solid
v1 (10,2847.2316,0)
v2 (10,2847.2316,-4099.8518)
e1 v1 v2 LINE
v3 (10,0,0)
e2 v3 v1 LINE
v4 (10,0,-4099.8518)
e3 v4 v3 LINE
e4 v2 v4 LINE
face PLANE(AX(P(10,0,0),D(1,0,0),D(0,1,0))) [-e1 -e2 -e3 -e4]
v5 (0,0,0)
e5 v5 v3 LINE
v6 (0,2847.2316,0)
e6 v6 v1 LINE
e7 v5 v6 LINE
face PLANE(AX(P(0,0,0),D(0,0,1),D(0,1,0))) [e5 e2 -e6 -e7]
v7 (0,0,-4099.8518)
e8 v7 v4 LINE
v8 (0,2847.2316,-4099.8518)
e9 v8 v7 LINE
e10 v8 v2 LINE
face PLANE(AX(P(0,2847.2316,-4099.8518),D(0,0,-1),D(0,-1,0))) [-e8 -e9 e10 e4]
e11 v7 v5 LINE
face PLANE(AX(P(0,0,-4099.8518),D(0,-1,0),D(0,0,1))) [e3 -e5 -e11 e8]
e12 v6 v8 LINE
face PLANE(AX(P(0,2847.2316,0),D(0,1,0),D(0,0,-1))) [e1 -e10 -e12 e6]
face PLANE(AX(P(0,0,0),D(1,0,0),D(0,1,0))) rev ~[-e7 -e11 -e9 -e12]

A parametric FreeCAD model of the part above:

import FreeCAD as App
import Part
import Sketcher

V = App.Vector
Q = App.Units.Quantity

doc = App.newDocument("Part")
body = doc.addObject("PartDesign::Body", "Body")

sketch1 = body.newObject("Sketcher::SketchObject", "Sketch")
sketch1.AttachmentSupport = (doc.getObject("YZ_Plane"), [""])
sketch1.MapMode = "FlatFace"
sketch1.addGeometry([
    Part.LineSegment(V(2847, 0, 0), V(0, 0, 0)),
    Part.LineSegment(V(0, 0, 0), V(0, -4100, 0)),
    Part.LineSegment(V(0, -4100, 0), V(2847, -4100, 0)),
    Part.LineSegment(V(2847, -4100, 0), V(2847, 0, 0)),
], False)
sketch1.addConstraint([
    Sketcher.Constraint("Coincident", 0, 2, 1, 1),
    Sketcher.Constraint("Coincident", 1, 2, 2, 1),
    Sketcher.Constraint("Coincident", 2, 2, 3, 1),
    Sketcher.Constraint("Coincident", 3, 2, 0, 1),
    Sketcher.Constraint("Horizontal", 0),
    Sketcher.Constraint("Vertical", 1),
    Sketcher.Constraint("Horizontal", 2),
    Sketcher.Constraint("Vertical", 3),
    Sketcher.Constraint("Coincident", 0, 2, -1, 1),
    Sketcher.Constraint("DistanceX", 0, 2, 0, 1, Q("2847.2316 mm")),
    Sketcher.Constraint("DistanceY", 1, 2, 1, 1, Q("4099.8518 mm")),
])
pad1 = body.newObject("PartDesign::Pad", "Pad")
pad1.Profile = sketch1
pad1.Length = 10

doc.recompute()
